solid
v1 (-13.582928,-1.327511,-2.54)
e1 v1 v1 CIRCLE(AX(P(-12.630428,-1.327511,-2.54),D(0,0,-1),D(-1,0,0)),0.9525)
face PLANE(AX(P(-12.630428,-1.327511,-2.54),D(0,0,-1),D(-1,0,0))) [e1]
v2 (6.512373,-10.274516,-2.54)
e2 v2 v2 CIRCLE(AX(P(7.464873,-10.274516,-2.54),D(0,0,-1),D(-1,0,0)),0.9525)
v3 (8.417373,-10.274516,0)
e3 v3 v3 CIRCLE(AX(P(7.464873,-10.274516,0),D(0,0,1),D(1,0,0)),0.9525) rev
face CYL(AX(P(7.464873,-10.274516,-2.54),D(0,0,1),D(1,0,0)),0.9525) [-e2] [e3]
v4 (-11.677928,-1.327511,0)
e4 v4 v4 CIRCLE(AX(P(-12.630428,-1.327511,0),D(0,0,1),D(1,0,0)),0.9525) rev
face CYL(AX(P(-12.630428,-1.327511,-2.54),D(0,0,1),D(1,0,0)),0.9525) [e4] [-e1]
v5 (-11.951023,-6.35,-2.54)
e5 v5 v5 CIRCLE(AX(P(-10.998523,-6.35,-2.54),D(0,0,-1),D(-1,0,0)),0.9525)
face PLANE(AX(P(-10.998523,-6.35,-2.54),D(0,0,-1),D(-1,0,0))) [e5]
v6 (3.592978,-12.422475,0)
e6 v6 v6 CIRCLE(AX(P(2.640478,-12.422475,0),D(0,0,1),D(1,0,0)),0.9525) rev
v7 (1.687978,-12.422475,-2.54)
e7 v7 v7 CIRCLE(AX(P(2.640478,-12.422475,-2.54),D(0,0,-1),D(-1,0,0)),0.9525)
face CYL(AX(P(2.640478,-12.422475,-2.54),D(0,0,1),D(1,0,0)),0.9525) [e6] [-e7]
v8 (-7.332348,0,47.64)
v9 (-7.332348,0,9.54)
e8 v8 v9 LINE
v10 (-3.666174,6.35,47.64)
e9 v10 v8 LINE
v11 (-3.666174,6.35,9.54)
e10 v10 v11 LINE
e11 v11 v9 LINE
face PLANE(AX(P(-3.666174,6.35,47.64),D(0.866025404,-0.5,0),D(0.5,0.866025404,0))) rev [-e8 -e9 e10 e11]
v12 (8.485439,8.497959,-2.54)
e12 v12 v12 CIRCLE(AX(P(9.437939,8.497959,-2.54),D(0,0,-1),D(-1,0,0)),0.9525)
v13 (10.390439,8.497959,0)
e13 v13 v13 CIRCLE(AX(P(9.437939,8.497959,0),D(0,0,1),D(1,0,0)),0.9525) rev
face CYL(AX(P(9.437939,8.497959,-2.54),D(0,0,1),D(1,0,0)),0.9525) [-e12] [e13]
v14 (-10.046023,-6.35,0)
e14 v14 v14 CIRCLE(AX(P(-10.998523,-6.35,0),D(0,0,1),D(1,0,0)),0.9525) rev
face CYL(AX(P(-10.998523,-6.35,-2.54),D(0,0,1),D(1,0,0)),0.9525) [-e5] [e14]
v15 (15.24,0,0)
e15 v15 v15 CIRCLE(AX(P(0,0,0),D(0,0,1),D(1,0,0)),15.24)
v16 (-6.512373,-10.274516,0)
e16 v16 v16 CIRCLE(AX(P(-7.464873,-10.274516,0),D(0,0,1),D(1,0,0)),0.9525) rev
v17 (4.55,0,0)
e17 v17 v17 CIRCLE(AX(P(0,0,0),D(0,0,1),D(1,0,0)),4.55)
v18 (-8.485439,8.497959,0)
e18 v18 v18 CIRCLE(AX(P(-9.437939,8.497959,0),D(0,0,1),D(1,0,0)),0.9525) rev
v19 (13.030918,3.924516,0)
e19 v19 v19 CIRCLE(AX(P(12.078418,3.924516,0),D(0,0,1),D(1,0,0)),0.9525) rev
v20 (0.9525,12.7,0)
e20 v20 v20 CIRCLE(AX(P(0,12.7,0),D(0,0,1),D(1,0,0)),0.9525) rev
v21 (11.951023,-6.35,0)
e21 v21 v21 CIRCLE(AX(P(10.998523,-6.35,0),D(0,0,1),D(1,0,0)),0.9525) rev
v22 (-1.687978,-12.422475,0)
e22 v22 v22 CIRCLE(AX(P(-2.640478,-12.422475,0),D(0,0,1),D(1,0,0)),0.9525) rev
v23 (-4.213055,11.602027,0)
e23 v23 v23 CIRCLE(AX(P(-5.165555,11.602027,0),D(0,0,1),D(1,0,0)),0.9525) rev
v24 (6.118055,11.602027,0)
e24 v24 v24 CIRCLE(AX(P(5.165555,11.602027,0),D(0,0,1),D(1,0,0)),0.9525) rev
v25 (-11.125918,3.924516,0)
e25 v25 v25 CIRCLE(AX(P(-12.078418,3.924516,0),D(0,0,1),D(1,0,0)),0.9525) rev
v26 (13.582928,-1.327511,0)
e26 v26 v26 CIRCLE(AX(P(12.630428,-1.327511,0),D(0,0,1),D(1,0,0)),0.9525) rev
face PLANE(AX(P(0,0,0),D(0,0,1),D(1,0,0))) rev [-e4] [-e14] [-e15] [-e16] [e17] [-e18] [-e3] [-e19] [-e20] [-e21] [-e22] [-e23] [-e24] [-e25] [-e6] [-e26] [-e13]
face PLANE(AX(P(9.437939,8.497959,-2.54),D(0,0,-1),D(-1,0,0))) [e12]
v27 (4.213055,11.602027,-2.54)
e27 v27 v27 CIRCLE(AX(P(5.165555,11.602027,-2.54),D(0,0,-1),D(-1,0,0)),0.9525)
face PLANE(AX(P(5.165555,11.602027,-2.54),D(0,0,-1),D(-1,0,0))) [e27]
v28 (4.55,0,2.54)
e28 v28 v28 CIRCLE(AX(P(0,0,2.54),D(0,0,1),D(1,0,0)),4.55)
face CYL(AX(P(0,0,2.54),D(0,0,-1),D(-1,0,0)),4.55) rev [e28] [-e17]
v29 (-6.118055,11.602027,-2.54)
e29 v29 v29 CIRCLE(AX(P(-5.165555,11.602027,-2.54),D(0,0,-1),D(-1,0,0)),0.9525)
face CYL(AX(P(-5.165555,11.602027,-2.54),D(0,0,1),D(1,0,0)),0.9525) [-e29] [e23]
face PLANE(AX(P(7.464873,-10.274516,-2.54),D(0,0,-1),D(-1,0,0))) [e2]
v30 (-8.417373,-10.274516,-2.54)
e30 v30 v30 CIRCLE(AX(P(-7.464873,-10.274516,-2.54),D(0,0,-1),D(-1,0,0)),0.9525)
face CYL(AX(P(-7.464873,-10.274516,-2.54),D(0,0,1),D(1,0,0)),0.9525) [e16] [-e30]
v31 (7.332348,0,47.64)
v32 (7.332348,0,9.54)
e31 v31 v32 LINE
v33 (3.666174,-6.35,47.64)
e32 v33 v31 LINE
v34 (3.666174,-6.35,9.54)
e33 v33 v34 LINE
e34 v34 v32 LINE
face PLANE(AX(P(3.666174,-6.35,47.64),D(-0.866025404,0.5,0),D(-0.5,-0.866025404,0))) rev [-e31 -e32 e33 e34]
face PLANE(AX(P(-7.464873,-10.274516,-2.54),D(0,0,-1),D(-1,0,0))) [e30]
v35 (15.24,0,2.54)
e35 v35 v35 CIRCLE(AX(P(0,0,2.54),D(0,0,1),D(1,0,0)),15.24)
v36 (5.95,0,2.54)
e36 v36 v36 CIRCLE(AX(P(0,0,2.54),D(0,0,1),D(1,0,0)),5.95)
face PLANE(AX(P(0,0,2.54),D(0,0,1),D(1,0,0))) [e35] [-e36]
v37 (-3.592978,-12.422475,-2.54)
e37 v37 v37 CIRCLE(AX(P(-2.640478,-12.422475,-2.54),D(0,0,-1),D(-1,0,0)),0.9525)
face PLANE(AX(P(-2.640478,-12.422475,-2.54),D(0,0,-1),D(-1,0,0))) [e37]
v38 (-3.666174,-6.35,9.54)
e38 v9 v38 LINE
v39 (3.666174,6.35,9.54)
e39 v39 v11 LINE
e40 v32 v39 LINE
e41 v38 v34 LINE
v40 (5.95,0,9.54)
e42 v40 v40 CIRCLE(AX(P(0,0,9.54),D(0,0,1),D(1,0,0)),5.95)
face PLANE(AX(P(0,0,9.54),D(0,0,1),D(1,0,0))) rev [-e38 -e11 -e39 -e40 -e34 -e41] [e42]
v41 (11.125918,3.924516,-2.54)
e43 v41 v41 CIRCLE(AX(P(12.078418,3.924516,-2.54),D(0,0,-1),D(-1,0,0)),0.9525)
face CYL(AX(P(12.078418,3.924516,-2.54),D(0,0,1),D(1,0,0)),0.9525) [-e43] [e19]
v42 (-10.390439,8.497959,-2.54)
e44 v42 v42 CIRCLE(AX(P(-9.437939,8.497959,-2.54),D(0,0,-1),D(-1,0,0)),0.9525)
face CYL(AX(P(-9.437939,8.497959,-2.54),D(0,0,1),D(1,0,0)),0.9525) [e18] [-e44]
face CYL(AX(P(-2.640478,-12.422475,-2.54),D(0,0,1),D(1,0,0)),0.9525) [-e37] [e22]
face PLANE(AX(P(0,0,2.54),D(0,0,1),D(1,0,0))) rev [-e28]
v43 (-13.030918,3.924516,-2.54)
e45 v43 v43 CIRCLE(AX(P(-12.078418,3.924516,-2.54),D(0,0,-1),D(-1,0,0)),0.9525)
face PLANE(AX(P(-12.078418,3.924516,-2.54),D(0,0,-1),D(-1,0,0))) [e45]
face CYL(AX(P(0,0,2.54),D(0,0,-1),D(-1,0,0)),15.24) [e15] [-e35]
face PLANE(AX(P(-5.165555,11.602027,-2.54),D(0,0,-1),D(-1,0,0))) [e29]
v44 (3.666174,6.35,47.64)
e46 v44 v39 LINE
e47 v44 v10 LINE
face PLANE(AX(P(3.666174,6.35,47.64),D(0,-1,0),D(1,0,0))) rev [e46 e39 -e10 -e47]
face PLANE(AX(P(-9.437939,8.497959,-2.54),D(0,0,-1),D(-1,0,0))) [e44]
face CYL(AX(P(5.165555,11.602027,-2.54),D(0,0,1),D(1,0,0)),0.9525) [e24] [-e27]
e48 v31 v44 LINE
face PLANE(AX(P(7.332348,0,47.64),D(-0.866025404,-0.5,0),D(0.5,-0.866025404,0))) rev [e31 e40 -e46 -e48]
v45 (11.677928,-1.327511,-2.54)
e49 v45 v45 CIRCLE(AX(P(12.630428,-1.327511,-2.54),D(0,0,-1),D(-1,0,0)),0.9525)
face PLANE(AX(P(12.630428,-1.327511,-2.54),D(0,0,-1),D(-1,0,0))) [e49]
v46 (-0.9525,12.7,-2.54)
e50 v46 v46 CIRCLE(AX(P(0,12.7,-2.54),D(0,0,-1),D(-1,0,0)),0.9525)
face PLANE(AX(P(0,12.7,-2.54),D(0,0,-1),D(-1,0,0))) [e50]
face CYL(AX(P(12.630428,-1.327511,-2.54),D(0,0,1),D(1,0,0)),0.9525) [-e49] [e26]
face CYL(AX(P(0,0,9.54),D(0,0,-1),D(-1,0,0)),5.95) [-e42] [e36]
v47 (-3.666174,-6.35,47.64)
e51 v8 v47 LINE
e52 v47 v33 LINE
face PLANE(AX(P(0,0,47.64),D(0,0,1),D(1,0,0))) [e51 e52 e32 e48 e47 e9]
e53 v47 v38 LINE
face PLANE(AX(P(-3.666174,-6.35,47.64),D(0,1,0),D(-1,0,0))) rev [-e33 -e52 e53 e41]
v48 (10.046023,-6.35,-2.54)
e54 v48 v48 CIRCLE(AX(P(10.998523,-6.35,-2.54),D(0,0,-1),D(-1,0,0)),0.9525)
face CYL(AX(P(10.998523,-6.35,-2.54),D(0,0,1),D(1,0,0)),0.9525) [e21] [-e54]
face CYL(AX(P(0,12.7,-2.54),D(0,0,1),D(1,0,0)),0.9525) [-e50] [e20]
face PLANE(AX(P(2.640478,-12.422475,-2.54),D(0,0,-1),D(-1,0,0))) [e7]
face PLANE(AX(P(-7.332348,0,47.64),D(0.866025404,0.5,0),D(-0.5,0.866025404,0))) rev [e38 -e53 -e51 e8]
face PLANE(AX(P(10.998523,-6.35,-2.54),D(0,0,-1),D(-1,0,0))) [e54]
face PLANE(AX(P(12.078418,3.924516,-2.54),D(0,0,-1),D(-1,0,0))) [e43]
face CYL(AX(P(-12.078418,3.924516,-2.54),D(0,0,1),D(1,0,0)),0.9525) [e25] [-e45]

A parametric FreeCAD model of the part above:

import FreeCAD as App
import Part
import Sketcher

V = App.Vector
Q = App.Units.Quantity


def add_polygon(sketch, points):
    """Adds a closed chain of lines whose ends are joined by coincident constraints."""
    first, n = sketch.GeometryCount, len(points)
    for a, b in zip(points, points[1:] + points[:1]):
        sketch.addGeometry(Part.LineSegment(App.Vector(*a, 0), App.Vector(*b, 0)), False)
    for i in range(n):
        sketch.addConstraint(Sketcher.Constraint("Coincident", first + i, 2, first + (i + 1) % n, 1))

doc = App.newDocument("Part")
body = doc.addObject("PartDesign::Body", "Body")

# Sketch on XY plane
sketch1 = body.newObject("Sketcher::SketchObject", "Sketch")
sketch1.AttachmentSupport = (doc.getObject("XY_Plane"), [""])
sketch1.MapMode = "FlatFace"
sketch1.addGeometry([
    Part.Circle(V(0, 0, 0), V(0, 0, 1), 15.24),
    Part.Circle(V(0, 0, 0), V(0, 0, 1), 4.55),
], False)
sketch1.addConstraint([
    Sketcher.Constraint("Coincident", 0, 3, -1, 1),
    Sketcher.Constraint("Coincident", 1, 3, -1, 1),
    Sketcher.Constraint("Diameter", 0, Q("1.2 in")),
    Sketcher.Constraint("Diameter", 1, Q("9.1 mm")),
])
pad1 = body.newObject("PartDesign::Pad", "Pad")
pad1.Profile = sketch1
pad1.Length = Q("0.1 in")

# Sketch on XY plane
sketch2 = body.newObject("Sketcher::SketchObject", "Sketch001")
sketch2.AttachmentSupport = (doc.getObject("XY_Plane"), [""])
sketch2.MapMode = "FlatFace"
sketch2.AttachmentOffset = App.Placement(V(0, 0, 0.1 * 25.4), App.Rotation())
sketch2.addGeometry(Part.Circle(V(0, 0, 0), V(0, 0, 1), 5.95), False)
sketch2.addConstraint([
    Sketcher.Constraint("Coincident", 0, 3, -1, 1),
    Sketcher.Constraint("Diameter", 0, Q("11.9 mm")),
])
pad2 = body.newObject("PartDesign::Pad", "Pad001")
pad2.Profile = sketch2
pad2.Length = 7

# Sketch on XY plane
sketch3 = body.newObject("Sketcher::SketchObject", "Sketch002")
sketch3.AttachmentSupport = (doc.getObject("XY_Plane"), [""])
sketch3.MapMode = "FlatFace"
sketch3.AttachmentOffset = App.Placement(V(0, 0, 9.54), App.Rotation())
add_polygon(sketch3, [(3.666174, 6.35), (-3.666174, 6.35), (-7.332348, 0), (-3.666174, -6.35), (3.666174, -6.35), (7.332348, 0)])  # lines 0-5
sketch3.addConstraint([
    Sketcher.Constraint("Horizontal", 0),
    Sketcher.Constraint("Horizontal", 3),
    Sketcher.Constraint("Symmetric", 0, 2, 3, 2, -1, 1),
    Sketcher.Constraint("Symmetric", 1, 2, 4, 2, -1, 1),
    Sketcher.Constraint("PointOnObject", 1, 2, -1),
    Sketcher.Constraint("Parallel", 2, 5),
    Sketcher.Constraint("Vertical", 0, 2, 2, 2),
    Sketcher.Constraint("Angle", 1, Q("-120 deg")),
    Sketcher.Constraint("DistanceY", 2, 2, 0, 2, Q("0.5 in")),
    Sketcher.Constraint("DistanceX", 0, 2, 0, 1, Q("7.332348 mm")),
])
pad3 = body.newObject("PartDesign::Pad", "Pad002")
pad3.Profile = sketch3
pad3.Length = Q("1.5 in")

# Sketch on XY plane
sketch4 = body.newObject("Sketcher::SketchObject", "Sketch003")
sketch4.AttachmentSupport = (doc.getObject("XY_Plane"), [""])
sketch4.MapMode = "FlatFace"
sketch4.addGeometry([
    Part.Circle(V(0, 12.7, 0), V(0, 0, 1), 0.9525),  # 0
    Part.Circle(V(-5.165555, 11.602027, 0), V(0, 0, 1), 0.9525),  # 1
    Part.Circle(V(-9.437939, 8.497959, 0), V(0, 0, 1), 0.9525),  # 2
    Part.Circle(V(-12.078418, 3.924516, 0), V(0, 0, 1), 0.9525),  # 3
    Part.Circle(V(-12.630428, -1.327511, 0), V(0, 0, 1), 0.9525),  # 4
    Part.Circle(V(-10.998523, -6.35, 0), V(0, 0, 1), 0.9525),  # 5
    Part.Circle(V(-7.464873, -10.274516, 0), V(0, 0, 1), 0.9525),  # 6
    Part.Circle(V(-2.640478, -12.422475, 0), V(0, 0, 1), 0.9525),  # 7
    Part.Circle(V(2.640478, -12.422475, 0), V(0, 0, 1), 0.9525),  # 8
    Part.Circle(V(7.464873, -10.274516, 0), V(0, 0, 1), 0.9525),  # 9
    Part.Circle(V(10.998523, -6.35, 0), V(0, 0, 1), 0.9525),  # 10
    Part.Circle(V(12.630428, -1.327511, 0), V(0, 0, 1), 0.9525),  # 11
    Part.Circle(V(12.078418, 3.924516, 0), V(0, 0, 1), 0.9525),  # 12
    Part.Circle(V(9.437939, 8.497959, 0), V(0, 0, 1), 0.9525),  # 13
    Part.Circle(V(5.165555, 11.602027, 0), V(0, 0, 1), 0.9525),  # 14
], False)
sketch4.addConstraint([
    Sketcher.Constraint("Equal", 0, 1),
    Sketcher.Constraint("Equal", 1, 2),
    Sketcher.Constraint("Equal", 2, 3),
    Sketcher.Constraint("Equal", 3, 4),
    Sketcher.Constraint("Equal", 4, 5),
    Sketcher.Constraint("Equal", 5, 6),
    Sketcher.Constraint("Equal", 6, 7),
    Sketcher.Constraint("Equal", 7, 8),
    Sketcher.Constraint("Equal", 8, 9),
    Sketcher.Constraint("Equal", 9, 10),
    Sketcher.Constraint("Equal", 10, 11),
    Sketcher.Constraint("Equal", 11, 12),
    Sketcher.Constraint("Equal", 12, 13),
    Sketcher.Constraint("Equal", 13, 14),
    Sketcher.Constraint("Symmetric", 7, 3, 8, 3, -2),
    Sketcher.Constraint("Symmetric", 6, 3, 9, 3, -2),
    Sketcher.Constraint("Symmetric", 5, 3, 10, 3, -2),
    Sketcher.Constraint("Symmetric", 4, 3, 11, 3, -2),
    Sketcher.Constraint("Symmetric", 3, 3, 12, 3, -2),
    Sketcher.Constraint("Symmetric", 2, 3, 13, 3, -2),
    Sketcher.Constraint("Symmetric", 1, 3, 14, 3, -2),
    Sketcher.Constraint("PointOnObject", 0, 3, -2),
    Sketcher.Constraint("Diameter", 0, Q("0.075 in")),
    Sketcher.Constraint("DistanceY", -1, 1, 0, 3, Q("0.5 in")),
    Sketcher.Constraint("DistanceY", 5, 3, -1, 1, Q("0.25 in")),
    Sketcher.Constraint("DistanceX", 5, 3, 8, 3, Q("13.639001 mm")),
    Sketcher.Constraint("DistanceX", 4, 3, 9, 3, Q("20.095301 mm")),
    Sketcher.Constraint("DistanceX", 2, 3, -1, 1, Q("9.437939 mm")),
    Sketcher.Constraint("DistanceY", -1, 1, 2, 3, Q("8.497959 mm")),
    Sketcher.Constraint("DistanceX", 4, 3, -1, 1, Q("12.630428 mm")),
    Sketcher.Constraint("DistanceY", 4, 3, -1, 1, Q("1.327511 mm")),
    Sketcher.Constraint("DistanceX", 7, 3, -1, 1, Q("2.640478 mm")),
    Sketcher.Constraint("DistanceY", 2, 3, 1, 3, Q("3.104069 mm")),
    Sketcher.Constraint("DistanceX", 3, 3, 2, 3, Q("2.640478 mm")),
    Sketcher.Constraint("DistanceY", 3, 3, 1, 3, Q("7.677511 mm")),
    Sketcher.Constraint("DistanceY", 6, 3, 3, 3, Q("14.199032 mm")),
    Sketcher.Constraint("DistanceY", 7, 3, 6, 3, Q("2.147959 mm")),
    Sketcher.Constraint("DistanceX", 1, 3, 14, 3, Q("10.331111 mm")),
])
pad4 = body.newObject("PartDesign::Pad", "Pad003")
pad4.Profile = sketch4
pad4.Length = Q("0.1 in")
pad4.Reversed = True

doc.recompute()
